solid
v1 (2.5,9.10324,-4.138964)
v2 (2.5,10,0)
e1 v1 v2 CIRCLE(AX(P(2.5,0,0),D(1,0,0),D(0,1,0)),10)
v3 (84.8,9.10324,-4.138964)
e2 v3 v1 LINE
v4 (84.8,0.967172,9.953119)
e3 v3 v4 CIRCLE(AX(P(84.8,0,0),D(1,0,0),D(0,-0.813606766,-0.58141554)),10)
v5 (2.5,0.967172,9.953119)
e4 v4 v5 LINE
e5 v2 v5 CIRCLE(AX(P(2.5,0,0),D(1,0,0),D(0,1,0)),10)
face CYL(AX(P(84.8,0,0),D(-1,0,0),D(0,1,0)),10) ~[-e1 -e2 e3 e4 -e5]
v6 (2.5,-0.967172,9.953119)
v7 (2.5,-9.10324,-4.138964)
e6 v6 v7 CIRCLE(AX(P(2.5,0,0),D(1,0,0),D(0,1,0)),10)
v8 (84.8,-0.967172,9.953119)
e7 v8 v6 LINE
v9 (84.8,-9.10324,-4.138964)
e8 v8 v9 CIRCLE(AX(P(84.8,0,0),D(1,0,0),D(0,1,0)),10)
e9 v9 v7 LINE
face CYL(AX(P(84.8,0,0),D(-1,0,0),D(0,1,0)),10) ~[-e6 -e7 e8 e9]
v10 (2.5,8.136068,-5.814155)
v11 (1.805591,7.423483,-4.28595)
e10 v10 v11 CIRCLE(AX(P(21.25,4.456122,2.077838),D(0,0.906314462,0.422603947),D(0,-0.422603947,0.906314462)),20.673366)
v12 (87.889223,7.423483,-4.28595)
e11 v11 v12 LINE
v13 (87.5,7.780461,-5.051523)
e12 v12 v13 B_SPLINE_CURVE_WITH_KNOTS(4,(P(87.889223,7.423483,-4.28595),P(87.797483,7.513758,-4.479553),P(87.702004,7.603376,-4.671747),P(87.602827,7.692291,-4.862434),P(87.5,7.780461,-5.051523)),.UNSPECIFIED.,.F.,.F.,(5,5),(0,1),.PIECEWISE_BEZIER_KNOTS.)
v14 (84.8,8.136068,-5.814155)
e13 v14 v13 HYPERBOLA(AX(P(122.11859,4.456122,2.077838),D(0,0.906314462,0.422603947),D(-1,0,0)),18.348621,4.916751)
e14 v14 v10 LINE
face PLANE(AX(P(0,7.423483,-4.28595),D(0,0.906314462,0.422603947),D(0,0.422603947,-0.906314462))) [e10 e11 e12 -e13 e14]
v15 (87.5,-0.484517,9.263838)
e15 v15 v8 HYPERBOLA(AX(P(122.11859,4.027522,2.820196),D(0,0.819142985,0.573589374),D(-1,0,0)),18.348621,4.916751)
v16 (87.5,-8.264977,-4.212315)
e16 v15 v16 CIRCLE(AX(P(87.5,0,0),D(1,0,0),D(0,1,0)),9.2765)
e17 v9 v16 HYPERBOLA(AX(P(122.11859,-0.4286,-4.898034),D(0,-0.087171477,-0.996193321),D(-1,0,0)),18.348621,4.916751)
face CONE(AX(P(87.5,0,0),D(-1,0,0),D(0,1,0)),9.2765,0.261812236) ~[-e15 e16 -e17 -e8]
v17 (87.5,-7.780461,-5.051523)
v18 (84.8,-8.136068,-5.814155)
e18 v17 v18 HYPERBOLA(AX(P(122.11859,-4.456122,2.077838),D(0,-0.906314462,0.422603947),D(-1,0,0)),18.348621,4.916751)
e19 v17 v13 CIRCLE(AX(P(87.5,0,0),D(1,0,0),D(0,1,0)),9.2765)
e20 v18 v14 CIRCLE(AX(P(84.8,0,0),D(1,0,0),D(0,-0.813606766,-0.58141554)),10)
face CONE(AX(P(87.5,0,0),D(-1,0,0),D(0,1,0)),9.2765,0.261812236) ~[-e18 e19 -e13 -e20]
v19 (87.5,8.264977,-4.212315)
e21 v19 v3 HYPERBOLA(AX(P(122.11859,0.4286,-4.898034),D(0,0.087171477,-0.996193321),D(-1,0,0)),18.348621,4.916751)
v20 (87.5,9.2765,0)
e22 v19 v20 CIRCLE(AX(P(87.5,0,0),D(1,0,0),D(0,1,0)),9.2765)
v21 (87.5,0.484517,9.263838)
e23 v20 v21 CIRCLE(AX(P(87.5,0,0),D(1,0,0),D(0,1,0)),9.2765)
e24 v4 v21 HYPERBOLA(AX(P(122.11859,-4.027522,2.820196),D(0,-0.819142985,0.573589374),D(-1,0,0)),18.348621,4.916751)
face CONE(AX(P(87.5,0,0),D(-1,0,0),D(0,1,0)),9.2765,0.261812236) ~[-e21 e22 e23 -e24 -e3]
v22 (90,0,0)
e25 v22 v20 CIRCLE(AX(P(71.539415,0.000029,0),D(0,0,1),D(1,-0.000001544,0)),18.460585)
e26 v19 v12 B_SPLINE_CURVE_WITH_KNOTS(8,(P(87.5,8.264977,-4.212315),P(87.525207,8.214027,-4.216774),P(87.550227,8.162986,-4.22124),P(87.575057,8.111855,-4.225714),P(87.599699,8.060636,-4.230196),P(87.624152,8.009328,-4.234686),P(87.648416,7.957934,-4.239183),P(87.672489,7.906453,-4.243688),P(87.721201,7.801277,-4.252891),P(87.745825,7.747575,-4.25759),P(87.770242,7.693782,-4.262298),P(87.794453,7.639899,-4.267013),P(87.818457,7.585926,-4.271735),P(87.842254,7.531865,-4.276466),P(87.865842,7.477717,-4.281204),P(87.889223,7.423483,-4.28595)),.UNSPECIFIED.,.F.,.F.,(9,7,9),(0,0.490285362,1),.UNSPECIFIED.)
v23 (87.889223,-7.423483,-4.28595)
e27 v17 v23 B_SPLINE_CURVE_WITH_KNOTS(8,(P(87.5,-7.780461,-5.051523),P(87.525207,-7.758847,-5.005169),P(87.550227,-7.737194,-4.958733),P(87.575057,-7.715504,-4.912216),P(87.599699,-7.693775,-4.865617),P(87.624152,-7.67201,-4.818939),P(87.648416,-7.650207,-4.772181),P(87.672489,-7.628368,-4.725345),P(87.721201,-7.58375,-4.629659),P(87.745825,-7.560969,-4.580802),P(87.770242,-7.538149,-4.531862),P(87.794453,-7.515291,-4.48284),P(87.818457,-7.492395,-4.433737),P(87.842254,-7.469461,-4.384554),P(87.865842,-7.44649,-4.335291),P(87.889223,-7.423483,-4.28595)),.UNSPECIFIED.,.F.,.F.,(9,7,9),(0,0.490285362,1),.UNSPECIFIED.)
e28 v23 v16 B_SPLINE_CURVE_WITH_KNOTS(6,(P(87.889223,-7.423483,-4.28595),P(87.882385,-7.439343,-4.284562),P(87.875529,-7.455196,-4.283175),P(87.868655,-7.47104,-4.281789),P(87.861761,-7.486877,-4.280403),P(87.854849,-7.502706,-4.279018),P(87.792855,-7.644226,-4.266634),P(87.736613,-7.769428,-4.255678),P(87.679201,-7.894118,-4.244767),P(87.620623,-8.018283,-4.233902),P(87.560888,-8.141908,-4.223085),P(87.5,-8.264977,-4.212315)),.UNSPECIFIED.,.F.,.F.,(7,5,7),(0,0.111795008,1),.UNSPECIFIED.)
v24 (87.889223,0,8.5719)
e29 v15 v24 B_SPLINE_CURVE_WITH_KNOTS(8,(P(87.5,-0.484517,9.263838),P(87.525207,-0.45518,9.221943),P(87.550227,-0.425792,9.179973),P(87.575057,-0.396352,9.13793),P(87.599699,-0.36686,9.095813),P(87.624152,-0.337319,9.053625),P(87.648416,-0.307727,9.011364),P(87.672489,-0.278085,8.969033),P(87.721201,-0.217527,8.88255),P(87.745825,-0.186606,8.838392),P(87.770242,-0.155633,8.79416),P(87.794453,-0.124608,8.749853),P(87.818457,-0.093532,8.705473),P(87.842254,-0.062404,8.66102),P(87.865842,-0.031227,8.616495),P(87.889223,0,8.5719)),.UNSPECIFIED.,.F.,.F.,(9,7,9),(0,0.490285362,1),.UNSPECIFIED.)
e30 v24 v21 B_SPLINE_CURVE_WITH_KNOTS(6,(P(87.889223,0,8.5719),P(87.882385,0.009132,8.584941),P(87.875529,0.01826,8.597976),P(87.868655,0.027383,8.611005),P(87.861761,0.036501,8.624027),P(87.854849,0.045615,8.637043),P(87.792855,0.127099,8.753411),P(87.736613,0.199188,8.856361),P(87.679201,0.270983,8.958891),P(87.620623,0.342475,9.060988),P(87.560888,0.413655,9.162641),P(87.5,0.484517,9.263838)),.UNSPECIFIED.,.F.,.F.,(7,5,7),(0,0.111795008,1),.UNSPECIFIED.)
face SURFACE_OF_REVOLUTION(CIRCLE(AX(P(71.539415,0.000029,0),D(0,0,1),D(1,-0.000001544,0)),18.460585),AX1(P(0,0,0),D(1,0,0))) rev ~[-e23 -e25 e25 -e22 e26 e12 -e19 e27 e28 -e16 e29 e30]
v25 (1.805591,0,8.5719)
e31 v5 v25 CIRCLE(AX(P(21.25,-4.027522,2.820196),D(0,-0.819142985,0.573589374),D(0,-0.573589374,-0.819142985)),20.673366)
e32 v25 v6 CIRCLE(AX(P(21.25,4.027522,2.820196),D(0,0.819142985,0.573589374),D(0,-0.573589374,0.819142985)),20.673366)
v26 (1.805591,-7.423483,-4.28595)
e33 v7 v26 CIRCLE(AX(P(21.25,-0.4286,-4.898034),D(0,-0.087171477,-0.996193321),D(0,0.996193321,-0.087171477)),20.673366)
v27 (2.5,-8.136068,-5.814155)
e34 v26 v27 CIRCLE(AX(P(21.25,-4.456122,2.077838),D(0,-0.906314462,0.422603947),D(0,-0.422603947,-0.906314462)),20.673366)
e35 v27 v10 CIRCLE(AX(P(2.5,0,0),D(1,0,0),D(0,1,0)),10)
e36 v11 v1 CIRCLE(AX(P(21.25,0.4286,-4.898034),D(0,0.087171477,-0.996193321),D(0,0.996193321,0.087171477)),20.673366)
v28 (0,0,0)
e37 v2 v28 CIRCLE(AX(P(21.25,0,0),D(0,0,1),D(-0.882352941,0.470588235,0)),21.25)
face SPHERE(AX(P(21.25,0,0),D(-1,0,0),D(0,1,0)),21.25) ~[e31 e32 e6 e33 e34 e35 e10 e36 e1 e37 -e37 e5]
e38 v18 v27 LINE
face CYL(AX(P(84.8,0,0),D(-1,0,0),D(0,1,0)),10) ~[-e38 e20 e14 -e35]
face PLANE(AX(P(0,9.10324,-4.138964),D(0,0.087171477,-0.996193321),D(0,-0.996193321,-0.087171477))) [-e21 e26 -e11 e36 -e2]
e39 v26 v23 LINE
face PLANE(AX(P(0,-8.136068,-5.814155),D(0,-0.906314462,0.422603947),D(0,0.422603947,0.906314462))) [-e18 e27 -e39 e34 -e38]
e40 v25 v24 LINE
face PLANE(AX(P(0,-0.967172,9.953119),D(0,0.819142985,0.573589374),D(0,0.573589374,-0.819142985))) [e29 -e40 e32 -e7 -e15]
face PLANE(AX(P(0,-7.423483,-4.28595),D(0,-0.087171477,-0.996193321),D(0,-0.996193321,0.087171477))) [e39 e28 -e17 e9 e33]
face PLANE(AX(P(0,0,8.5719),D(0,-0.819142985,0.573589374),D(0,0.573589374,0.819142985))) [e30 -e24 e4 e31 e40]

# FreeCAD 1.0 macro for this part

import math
import FreeCAD as App
import Part
import Sketcher
from FreeCAD import Vector
Q = App.Units.Quantity


def add_polygon(sketch, points):
    """Adds a closed chain of lines whose ends are joined by coincident constraints."""
    first, n = sketch.GeometryCount, len(points)
    for a, b in zip(points, points[1:] + points[:1]):
        sketch.addGeometry(Part.LineSegment(App.Vector(*a, 0), App.Vector(*b, 0)), False)
    for i in range(n):
        sketch.addConstraint(Sketcher.Constraint("Coincident", first + i, 2, first + (i + 1) % n, 1))

doc = App.newDocument("Part")
body = doc.addObject("PartDesign::Body", "Body")

# Sketch on XY plane
sketch1 = doc.addObject("Sketcher::SketchObject", "Sketch")
body.addObject(sketch1)
sketch1.AttachmentSupport = (doc.XY_Plane, [""])
sketch1.MapMode = "FlatFace"
sketch1.addGeometry(Part.ArcOfCircle(Part.Circle(Vector(71.5392, 0, 0), Vector(0, 0, 1), 18.4608), math.radians(0), math.radians(30.165377)), False)
sketch1.addGeometry(Part.LineSegment(Vector(87.5, 9.2765, 0), Vector(84.8, 10, 0)), False)
sketch1.addGeometry(Part.LineSegment(Vector(84.8, 10, 0), Vector(2.5, 10, 0)), False)
sketch1.addGeometry(Part.ArcOfCircle(Part.Circle(Vector(21.25, 0, 0), Vector(0, 0, 1), 21.25), math.radians(151.927513), math.radians(180)), False)
sketch1.addGeometry(Part.LineSegment(Vector(0, 0, 0), Vector(90, 0, 0)), False)
sketch1.addConstraint(Sketcher.Constraint("Coincident", 0, 2, 1, 1))
sketch1.addConstraint(Sketcher.Constraint("Coincident", 1, 2, 2, 1))
sketch1.addConstraint(Sketcher.Constraint("Coincident", 2, 2, 3, 1))
sketch1.addConstraint(Sketcher.Constraint("Coincident", 3, 2, 4, 1))
sketch1.addConstraint(Sketcher.Constraint("Coincident", 4, 2, 0, 1))
sketch1.addConstraint(Sketcher.Constraint("Horizontal", 2))
sketch1.addConstraint(Sketcher.Constraint("Horizontal", 4))
sketch1.addConstraint(Sketcher.Constraint("Coincident", 3, 2, -1, 1))
sketch1.addConstraint(Sketcher.Constraint("PointOnObject", 0, 3, -1))
sketch1.addConstraint(Sketcher.Constraint("PointOnObject", 3, 3, -1))
sketch1.addConstraint(Sketcher.Constraint("DistanceX", 4, 1, 4, 2, 90.0))
sketch1.addConstraint(Sketcher.Constraint("DistanceX", -1, 1, 2, 2, 2.5))
sketch1.addConstraint(Sketcher.Constraint("DistanceX", 0, 2, 4, 2, 2.5))
sketch1.addConstraint(Sketcher.Constraint("DistanceX", 1, 2, 4, 2, 5.2))
sketch1.addConstraint(Sketcher.Constraint("Angle", 1, Q("164.9993 deg")))
sketch1.addConstraint(Sketcher.Constraint("Radius", 3, 21.25))
revolution = doc.addObject("PartDesign::Revolution", "Revolution")
body.addObject(revolution)
revolution.Profile = sketch1
revolution.ReferenceAxis = (sketch1, ["H_Axis"])
revolution.Angle = 360

# Sketch on YZ plane
sketch2 = doc.addObject("Sketcher::SketchObject", "Sketch001")
body.addObject(sketch2)
sketch2.AttachmentSupport = (doc.YZ_Plane, [""])
sketch2.MapMode = "FlatFace"
add_polygon(sketch2, [(0, 8.5719), (1, 10), (-1, 10)])  # lines 0-2
sketch2.addConstraint(Sketcher.Constraint("Horizontal", 1))
sketch2.addConstraint(Sketcher.Constraint("PointOnObject", 2, 2, -2))
sketch2.addConstraint(Sketcher.Constraint("Equal", 0, 2))
sketch2.addConstraint(Sketcher.Constraint("DistanceX", -1, 1, 0, 2, 1.0))
sketch2.addConstraint(Sketcher.Constraint("Angle", 0, Q("54.999 deg")))
sketch2.addConstraint(Sketcher.Constraint("DistanceY", -1, 1, 0, 2, 10.0))
pocket1 = doc.addObject("PartDesign::Pocket", "Pocket")
body.addObject(pocket1)
pocket1.Profile = sketch2
pocket1.Type = "ThroughAll"
pocket1.Reversed = True
doc.recompute()

polarpattern = doc.addObject("PartDesign::PolarPattern", "PolarPattern")
body.addObject(polarpattern)
polarpattern.Originals = [pocket1]
polarpattern.Axis = (doc.X_Axis, [""])
polarpattern.Angle = 360
polarpattern.Occurrences = 3
body.Tip = polarpattern

doc.recompute()
